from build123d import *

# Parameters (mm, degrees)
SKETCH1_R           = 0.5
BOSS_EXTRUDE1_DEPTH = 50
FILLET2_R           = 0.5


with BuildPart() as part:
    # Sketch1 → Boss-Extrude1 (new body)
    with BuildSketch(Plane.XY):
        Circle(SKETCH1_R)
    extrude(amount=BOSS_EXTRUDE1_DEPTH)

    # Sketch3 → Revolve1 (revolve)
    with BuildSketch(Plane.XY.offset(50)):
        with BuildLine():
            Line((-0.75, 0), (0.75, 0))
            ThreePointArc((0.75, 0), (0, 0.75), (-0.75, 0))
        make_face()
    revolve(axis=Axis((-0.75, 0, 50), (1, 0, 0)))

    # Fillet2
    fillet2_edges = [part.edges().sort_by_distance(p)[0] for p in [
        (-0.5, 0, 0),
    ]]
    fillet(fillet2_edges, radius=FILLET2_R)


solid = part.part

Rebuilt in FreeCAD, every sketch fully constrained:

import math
import FreeCAD as App
import Part
import Sketcher

V = App.Vector
Q = App.Units.Quantity


def edges_at(feature, points):
    """Names of the edges that pass closest to the given points."""
    edges = feature.Shape.Edges
    near = lambda p: min(range(len(edges)), key=lambda i: edges[i].distToShape(Part.Vertex(*p))[0])
    return sorted({f"Edge{near(p) + 1}" for p in points})

doc = App.newDocument("Part")
body = doc.addObject("PartDesign::Body", "Body")

# Sketch on XY plane
sketch1 = body.newObject("Sketcher::SketchObject", "Sketch")
sketch1.AttachmentSupport = (doc.getObject("XY_Plane"), [""])
sketch1.MapMode = "FlatFace"
sketch1.addGeometry(Part.Circle(V(0, 0, 0), V(0, 0, 1), 0.5), False)
sketch1.addConstraint(Sketcher.Constraint("Coincident", 0, 3, -1, 1))
sketch1.addConstraint(Sketcher.Constraint("Diameter", 0, Q("1 mm")))
pad1 = body.newObject("PartDesign::Pad", "Pad")
pad1.Profile = sketch1
pad1.Length = 50

# Sketch on XY plane
sketch2 = body.newObject("Sketcher::SketchObject", "Sketch001")
sketch2.AttachmentSupport = (doc.getObject("XY_Plane"), [""])
sketch2.MapMode = "FlatFace"
sketch2.AttachmentOffset = App.Placement(V(0, 0, 50), App.Rotation())
sketch2.addGeometry(Part.LineSegment(V(-0.8, 0, 0), V(0.8, 0, 0)), False)
sketch2.addGeometry(Part.ArcOfCircle(Part.Circle(V(0, 0, 0), V(0, 0, 1), 0.8), math.radians(0), math.radians(180)), False)
sketch2.addConstraint(Sketcher.Constraint("Coincident", 0, 1, 1, 2))
sketch2.addConstraint(Sketcher.Constraint("Coincident", 1, 1, 0, 2))
sketch2.addConstraint(Sketcher.Constraint("Horizontal", 0))
sketch2.addConstraint(Sketcher.Constraint("Coincident", 1, 3, -1, 1))
sketch2.addConstraint(Sketcher.Constraint("PointOnObject", 0, 1, -1))
sketch2.addConstraint(Sketcher.Constraint("Radius", 1, Q("0.75 mm")))
revolution = body.newObject("PartDesign::Revolution", "Revolution")
revolution.Profile = sketch2
revolution.ReferenceAxis = (sketch2, ["H_Axis"])
revolution.Angle = 360
doc.recompute()

fillet = body.newObject("PartDesign::Fillet", "Fillet")
fillet.Base = (revolution, edges_at(revolution, [(-0.5, 0, 0)]))
fillet.Radius = 0.5

doc.recompute()
